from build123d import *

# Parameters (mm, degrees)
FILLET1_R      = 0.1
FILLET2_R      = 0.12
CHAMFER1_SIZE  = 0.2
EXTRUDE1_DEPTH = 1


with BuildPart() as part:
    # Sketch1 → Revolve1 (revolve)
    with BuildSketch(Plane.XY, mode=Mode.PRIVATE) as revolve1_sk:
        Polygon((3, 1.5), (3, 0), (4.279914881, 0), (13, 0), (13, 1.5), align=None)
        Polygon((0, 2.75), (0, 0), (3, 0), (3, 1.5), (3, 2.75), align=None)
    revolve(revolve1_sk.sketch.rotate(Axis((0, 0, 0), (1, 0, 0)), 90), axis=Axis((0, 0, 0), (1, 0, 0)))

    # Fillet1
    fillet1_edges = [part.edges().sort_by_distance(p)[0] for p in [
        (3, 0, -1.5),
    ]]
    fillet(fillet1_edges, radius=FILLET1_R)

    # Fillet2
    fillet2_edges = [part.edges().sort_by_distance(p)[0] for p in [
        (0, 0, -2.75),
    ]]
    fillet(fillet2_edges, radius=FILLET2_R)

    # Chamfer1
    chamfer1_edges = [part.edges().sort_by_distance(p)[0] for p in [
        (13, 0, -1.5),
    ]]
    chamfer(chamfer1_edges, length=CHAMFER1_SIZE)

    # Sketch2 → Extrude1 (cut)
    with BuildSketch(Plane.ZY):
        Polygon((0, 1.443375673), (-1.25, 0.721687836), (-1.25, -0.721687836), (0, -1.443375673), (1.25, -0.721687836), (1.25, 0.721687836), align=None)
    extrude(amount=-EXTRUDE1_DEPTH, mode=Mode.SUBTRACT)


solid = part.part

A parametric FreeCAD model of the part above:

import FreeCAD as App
import Part
import Sketcher
from FreeCAD import Vector
Q = App.Units.Quantity


def edges_at(feature, points):
    """Names of the edges that pass closest to the given points."""
    edges = feature.Shape.Edges
    near = lambda p: min(range(len(edges)), key=lambda i: edges[i].distToShape(Part.Vertex(*p))[0])
    return sorted({f"Edge{near(p) + 1}" for p in points})


def add_polygon(sketch, points):
    """Adds a closed chain of lines whose ends are joined by coincident constraints."""
    first, n = sketch.GeometryCount, len(points)
    for a, b in zip(points, points[1:] + points[:1]):
        sketch.addGeometry(Part.LineSegment(App.Vector(*a, 0), App.Vector(*b, 0)), False)
    for i in range(n):
        sketch.addConstraint(Sketcher.Constraint("Coincident", first + i, 2, first + (i + 1) % n, 1))

doc = App.newDocument("Part")
params = doc.addObject("Spreadsheet::Sheet", "Params")
for row, (alias, value) in enumerate([
    ("sketch1_width", "10 mm"),
    ("sketch1_width2", "3 mm"),
    ("sketch1_height", "1.5 mm"),
    ("sketch1_height2", "1.25 mm"),
    ("revolution_angle", "360 deg"),
    ("fillet_radius", "0.1 mm"),
    ("fillet2_radius", "0.12 mm"),
    ("chamfer_size", "0.2 mm"),
    ("pocket1_length", "1 mm"),
], start=1):
    params.set(f"A{row}", alias)
    params.set(f"B{row}", "=" + value)
    params.setAlias(f"B{row}", alias)

body = doc.addObject("PartDesign::Body", "Body")

sketch1 = body.newObject("Sketcher::SketchObject", "Sketch")
sketch1.AttachmentSupport = (doc.getObject("XY_Plane"), [""])
sketch1.MapMode = "FlatFace"
add_polygon(sketch1, [(13, 0), (13, 1.5), (3, 1.5), (3, 2.75), (0, 2.75), (0, 0)])
sketch1.addConstraint(Sketcher.Constraint("Vertical", 0))
sketch1.addConstraint(Sketcher.Constraint("Horizontal", 1))
sketch1.addConstraint(Sketcher.Constraint("Vertical", 2))
sketch1.addConstraint(Sketcher.Constraint("Horizontal", 3))
sketch1.addConstraint(Sketcher.Constraint("Vertical", 4))
sketch1.addConstraint(Sketcher.Constraint("Horizontal", 5))
sketch1.addConstraint(Sketcher.Constraint("Coincident", 4, 2, -1, 1))
sketch1.addConstraint(Sketcher.Constraint("DistanceX", 1, 2, 1, 1, Q("10 mm")))
sketch1.addConstraint(Sketcher.Constraint("DistanceX", 3, 2, 3, 1, Q("3 mm")))
sketch1.addConstraint(Sketcher.Constraint("DistanceY", 0, 1, 0, 2, Q("1.5 mm")))
sketch1.addConstraint(Sketcher.Constraint("DistanceY", 2, 1, 2, 2, Q("1.25 mm")))
sketch1.setExpression("Constraints[13]", "Params.sketch1_width")
sketch1.setExpression("Constraints[14]", "Params.sketch1_width2")
sketch1.setExpression("Constraints[15]", "Params.sketch1_height")
sketch1.setExpression("Constraints[16]", "Params.sketch1_height2")
revolution = body.newObject("PartDesign::Revolution", "Revolution")
revolution.Profile = sketch1
revolution.ReferenceAxis = (sketch1, ["H_Axis"])
revolution.setExpression("Angle", "Params.revolution_angle")
doc.recompute()

fillet = body.newObject("PartDesign::Fillet", "Fillet")
fillet.Base = (revolution, edges_at(revolution, [(3, 0, -1.5)]))
fillet.setExpression("Radius", "Params.fillet_radius")
doc.recompute()

fillet2 = body.newObject("PartDesign::Fillet", "Fillet001")
fillet2.Base = (fillet, edges_at(fillet, [(0, 0, -2.75)]))
fillet2.setExpression("Radius", "Params.fillet2_radius")
doc.recompute()

chamfer = body.newObject("PartDesign::Chamfer", "Chamfer")
chamfer.Base = (fillet2, edges_at(fillet2, [(13, 0, -1.5)]))
chamfer.setExpression("Size", "Params.chamfer_size")

sketch2 = body.newObject("Sketcher::SketchObject", "Sketch001")
sketch2.AttachmentSupport = (doc.getObject("YZ_Plane"), [""])
sketch2.MapMode = "FlatFace"
add_polygon(sketch2, [(1.443376, 0), (0.721688, -1.25), (-0.721688, -1.25), (-1.443376, 0), (-0.721688, 1.25), (0.721688, 1.25)])
sketch2.addConstraint(Sketcher.Constraint("Horizontal", 1))
sketch2.addConstraint(Sketcher.Constraint("Horizontal", 4))
sketch2.addConstraint(Sketcher.Constraint("Symmetric", 0, 2, 3, 2, -1, 1))
sketch2.addConstraint(Sketcher.Constraint("Symmetric", 2, 2, 5, 2, -1, 1))
sketch2.addConstraint(Sketcher.Constraint("PointOnObject", 2, 2, -1))
sketch2.addConstraint(Sketcher.Constraint("Parallel", 2, 5))
sketch2.addConstraint(Sketcher.Constraint("Vertical", 1, 2, 3, 2))
sketch2.addConstraint(Sketcher.Constraint("Angle", 0, Q("-120 deg")))
sketch2.addConstraint(Sketcher.Constraint("DistanceY", 1, 2, 3, 2, Q("2.5 mm")))
sketch2.addConstraint(Sketcher.Constraint("DistanceX", 1, 2, 1, 1, Q("1.443376 mm")))
pocket1 = body.newObject("PartDesign::Pocket", "Pocket")
pocket1.Profile = sketch2
pocket1.setExpression("Length", "Params.pocket1_length")
pocket1.Reversed = True

doc.recompute()
